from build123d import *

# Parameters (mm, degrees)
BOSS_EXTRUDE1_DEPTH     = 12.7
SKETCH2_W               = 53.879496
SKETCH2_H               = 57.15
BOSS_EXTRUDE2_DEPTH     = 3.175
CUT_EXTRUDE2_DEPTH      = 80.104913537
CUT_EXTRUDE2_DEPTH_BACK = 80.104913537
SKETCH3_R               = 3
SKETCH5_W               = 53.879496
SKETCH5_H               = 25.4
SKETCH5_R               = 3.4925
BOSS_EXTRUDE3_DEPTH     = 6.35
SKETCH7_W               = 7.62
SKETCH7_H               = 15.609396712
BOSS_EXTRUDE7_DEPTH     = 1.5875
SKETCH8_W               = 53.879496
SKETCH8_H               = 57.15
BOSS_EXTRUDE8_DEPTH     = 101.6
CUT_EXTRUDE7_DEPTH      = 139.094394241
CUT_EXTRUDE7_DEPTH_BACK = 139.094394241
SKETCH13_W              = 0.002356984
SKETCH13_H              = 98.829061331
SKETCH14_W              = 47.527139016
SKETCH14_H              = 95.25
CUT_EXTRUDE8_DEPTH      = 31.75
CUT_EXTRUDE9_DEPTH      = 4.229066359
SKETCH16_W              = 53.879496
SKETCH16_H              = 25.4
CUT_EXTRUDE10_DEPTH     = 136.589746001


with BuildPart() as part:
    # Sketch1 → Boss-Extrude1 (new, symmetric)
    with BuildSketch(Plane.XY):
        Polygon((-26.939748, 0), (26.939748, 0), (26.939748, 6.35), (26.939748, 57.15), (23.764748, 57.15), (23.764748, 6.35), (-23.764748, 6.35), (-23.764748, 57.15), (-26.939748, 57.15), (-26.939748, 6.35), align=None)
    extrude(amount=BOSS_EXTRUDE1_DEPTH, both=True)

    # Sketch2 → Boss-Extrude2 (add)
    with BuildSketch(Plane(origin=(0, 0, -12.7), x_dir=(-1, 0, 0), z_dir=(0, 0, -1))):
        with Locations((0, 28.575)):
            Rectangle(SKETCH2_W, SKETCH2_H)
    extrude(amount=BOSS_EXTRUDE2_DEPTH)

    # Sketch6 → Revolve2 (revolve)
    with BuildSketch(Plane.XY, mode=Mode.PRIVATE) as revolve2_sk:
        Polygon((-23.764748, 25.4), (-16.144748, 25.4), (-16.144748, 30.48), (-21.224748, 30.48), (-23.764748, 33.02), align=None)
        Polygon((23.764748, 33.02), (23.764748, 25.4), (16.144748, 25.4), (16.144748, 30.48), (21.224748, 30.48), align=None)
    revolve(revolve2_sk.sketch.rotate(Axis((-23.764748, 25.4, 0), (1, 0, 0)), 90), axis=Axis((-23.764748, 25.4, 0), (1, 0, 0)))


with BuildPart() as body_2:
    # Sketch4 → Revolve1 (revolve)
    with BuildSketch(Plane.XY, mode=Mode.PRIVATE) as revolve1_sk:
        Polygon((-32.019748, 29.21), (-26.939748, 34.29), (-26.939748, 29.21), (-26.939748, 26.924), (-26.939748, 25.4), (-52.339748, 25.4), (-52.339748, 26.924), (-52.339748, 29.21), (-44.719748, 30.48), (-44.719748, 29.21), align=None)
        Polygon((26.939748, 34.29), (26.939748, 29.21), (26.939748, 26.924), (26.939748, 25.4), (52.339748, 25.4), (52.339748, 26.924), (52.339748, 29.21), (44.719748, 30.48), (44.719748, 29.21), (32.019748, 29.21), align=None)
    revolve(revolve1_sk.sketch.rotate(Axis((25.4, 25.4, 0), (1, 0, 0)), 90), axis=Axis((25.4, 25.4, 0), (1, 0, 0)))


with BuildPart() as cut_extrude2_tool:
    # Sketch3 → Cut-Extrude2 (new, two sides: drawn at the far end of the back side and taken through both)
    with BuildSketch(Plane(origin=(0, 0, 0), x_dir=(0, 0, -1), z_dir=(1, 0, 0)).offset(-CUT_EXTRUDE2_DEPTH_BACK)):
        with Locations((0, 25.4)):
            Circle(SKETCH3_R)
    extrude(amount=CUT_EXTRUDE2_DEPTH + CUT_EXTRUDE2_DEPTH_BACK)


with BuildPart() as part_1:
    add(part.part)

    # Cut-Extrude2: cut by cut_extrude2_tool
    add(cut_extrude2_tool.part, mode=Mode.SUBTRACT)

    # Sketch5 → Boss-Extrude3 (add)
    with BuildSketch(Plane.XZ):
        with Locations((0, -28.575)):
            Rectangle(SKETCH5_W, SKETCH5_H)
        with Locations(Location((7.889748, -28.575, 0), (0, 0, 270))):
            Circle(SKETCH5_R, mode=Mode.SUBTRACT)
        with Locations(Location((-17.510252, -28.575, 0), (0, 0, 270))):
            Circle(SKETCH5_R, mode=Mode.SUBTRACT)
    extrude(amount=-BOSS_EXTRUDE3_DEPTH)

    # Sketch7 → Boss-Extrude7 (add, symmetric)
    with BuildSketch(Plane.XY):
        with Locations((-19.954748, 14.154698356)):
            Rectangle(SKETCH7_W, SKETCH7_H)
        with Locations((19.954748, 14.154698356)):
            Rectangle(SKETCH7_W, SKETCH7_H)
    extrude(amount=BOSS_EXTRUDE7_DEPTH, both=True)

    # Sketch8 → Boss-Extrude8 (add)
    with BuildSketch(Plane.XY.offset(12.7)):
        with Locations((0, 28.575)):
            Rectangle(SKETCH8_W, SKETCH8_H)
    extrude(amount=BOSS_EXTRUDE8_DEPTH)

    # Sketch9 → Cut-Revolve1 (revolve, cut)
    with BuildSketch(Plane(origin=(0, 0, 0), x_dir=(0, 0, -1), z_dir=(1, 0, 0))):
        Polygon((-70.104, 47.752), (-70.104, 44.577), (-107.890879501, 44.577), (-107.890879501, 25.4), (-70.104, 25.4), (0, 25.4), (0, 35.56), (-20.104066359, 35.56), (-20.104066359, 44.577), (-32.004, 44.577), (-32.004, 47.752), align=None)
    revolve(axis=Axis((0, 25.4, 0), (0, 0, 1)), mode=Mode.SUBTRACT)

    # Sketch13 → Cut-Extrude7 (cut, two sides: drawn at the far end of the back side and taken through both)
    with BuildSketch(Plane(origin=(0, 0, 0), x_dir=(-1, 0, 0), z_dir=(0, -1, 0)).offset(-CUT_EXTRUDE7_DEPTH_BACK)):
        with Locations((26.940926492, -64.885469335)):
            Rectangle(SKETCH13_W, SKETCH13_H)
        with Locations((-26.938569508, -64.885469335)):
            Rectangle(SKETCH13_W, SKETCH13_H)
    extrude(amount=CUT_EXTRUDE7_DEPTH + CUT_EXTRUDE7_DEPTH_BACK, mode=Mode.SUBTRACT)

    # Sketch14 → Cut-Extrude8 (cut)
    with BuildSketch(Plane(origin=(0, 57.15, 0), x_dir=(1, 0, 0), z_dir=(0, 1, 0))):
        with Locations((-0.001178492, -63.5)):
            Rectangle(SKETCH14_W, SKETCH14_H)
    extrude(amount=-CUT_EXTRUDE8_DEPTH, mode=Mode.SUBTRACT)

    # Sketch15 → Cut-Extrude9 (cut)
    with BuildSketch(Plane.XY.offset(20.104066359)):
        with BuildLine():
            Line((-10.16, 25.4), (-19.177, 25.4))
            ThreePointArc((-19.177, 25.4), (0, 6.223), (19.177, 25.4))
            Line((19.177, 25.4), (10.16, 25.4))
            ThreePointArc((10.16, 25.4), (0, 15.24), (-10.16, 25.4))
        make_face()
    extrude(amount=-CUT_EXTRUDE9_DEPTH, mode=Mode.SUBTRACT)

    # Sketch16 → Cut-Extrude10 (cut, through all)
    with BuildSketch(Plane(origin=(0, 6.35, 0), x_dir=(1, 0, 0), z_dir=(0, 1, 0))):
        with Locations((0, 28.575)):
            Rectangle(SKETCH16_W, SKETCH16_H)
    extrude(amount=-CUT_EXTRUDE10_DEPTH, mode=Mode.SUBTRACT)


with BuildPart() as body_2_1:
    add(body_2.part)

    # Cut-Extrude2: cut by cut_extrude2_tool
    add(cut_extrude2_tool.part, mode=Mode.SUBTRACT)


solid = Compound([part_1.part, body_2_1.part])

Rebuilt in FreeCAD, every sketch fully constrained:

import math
import FreeCAD as App
import Part
import Sketcher
from FreeCAD import Vector
Q = App.Units.Quantity


def add_polygon(sketch, points):
    """Adds a closed chain of lines whose ends are joined by coincident constraints."""
    first, n = sketch.GeometryCount, len(points)
    for a, b in zip(points, points[1:] + points[:1]):
        sketch.addGeometry(Part.LineSegment(App.Vector(*a, 0), App.Vector(*b, 0)), False)
    for i in range(n):
        sketch.addConstraint(Sketcher.Constraint("Coincident", first + i, 2, first + (i + 1) % n, 1))

doc = App.newDocument("Part")
body = doc.addObject("PartDesign::Body", "Body")

# Sketch on XY plane
sketch1 = body.newObject("Sketcher::SketchObject", "Sketch")
sketch1.AttachmentSupport = (doc.getObject("XY_Plane"), [""])
sketch1.MapMode = "FlatFace"
add_polygon(sketch1, [(-26.9, 0), (26.9, 0), (26.9, 57.1), (23.8, 57.1), (23.8, 6.3), (-23.8, 6.3), (-23.8, 57.1), (-26.9, 57.1)])  # lines 0-7
sketch1.addConstraint([
    Sketcher.Constraint("Horizontal", 0),
    Sketcher.Constraint("Vertical", 1),
    Sketcher.Constraint("Horizontal", 2),
    Sketcher.Constraint("Vertical", 3),
    Sketcher.Constraint("Horizontal", 4),
    Sketcher.Constraint("Vertical", 5),
    Sketcher.Constraint("Horizontal", 6),
    Sketcher.Constraint("Vertical", 7),
    Sketcher.Constraint("Symmetric", 0, 2, 7, 2, -1, 1),
    Sketcher.Constraint("Symmetric", 2, 2, 5, 2, -2),
    Sketcher.Constraint("DistanceY", 3, 2, 3, 1, Q("2 in")),
    Sketcher.Constraint("DistanceY", 1, 1, 1, 2, Q("2.25 in")),
    Sketcher.Constraint("DistanceX", 2, 2, 2, 1, Q("0.125 in")),
    Sketcher.Constraint("DistanceX", 0, 1, 0, 2, Q("53.879496 mm")),
])
pad1 = body.newObject("PartDesign::Pad", "Pad")
pad1.Profile = sketch1
pad1.Length = Q("1 in")
pad1.Midplane = True

# Sketch on XY plane
sketch2 = body.newObject("Sketcher::SketchObject", "Sketch001")
sketch2.AttachmentSupport = (doc.getObject("XY_Plane"), [""])
sketch2.MapMode = "FlatFace"
sketch2.AttachmentOffset = App.Placement(Vector(0, 0, -0.5 * 25.4), App.Rotation())
add_polygon(sketch2, [(27, 57), (27, 0), (-27, 0), (-27, 57)])  # lines 0-3
sketch2.addConstraint([
    Sketcher.Constraint("Vertical", 0),
    Sketcher.Constraint("Horizontal", 1),
    Sketcher.Constraint("Vertical", 2),
    Sketcher.Constraint("Horizontal", 3),
    Sketcher.Constraint("Symmetric", 0, 2, 1, 2, -1, 1),
    Sketcher.Constraint("DistanceY", 0, 2, 0, 1, Q("2.25 in")),
    Sketcher.Constraint("DistanceX", 1, 2, 1, 1, Q("53.879496 mm")),
])
pad2 = body.newObject("PartDesign::Pad", "Pad001")
pad2.Profile = sketch2
pad2.Length = Q("0.125 in")
pad2.Reversed = True

# Sketch on XY plane
sketch3 = body.newObject("Sketcher::SketchObject", "Sketch002")
sketch3.AttachmentSupport = (doc.getObject("XY_Plane"), [""])
sketch3.MapMode = "FlatFace"
add_polygon(sketch3, [(-23.8, 25.4), (-16.1, 25.4), (-16.1, 30.5), (-21.2, 30.5), (-23.8, 33)])  # lines 0-4
add_polygon(sketch3, [(23.8, 25.4), (23.8, 33), (21.2, 30.5), (16.1, 30.5), (16.1, 25.4)])  # lines 5-9
sketch3.addGeometry(Part.LineSegment(Vector(-23.8, 25.4, 0), Vector(23.8, 25.4, 0)), True)  # axis
sketch3.addConstraint([
    Sketcher.Constraint("Horizontal", 0),
    Sketcher.Constraint("Vertical", 1),
    Sketcher.Constraint("Horizontal", 2),
    Sketcher.Constraint("Vertical", 4),
    Sketcher.Constraint("Vertical", 5),
    Sketcher.Constraint("Horizontal", 7),
    Sketcher.Constraint("Vertical", 8),
    Sketcher.Constraint("Horizontal", 9),
    Sketcher.Constraint("Horizontal", 10),
    Sketcher.Constraint("Coincident", 10, 1, 4, 2),
    Sketcher.Constraint("Coincident", 10, 2, 9, 2),
    Sketcher.Constraint("Symmetric", 3, 2, 5, 2, -2),
    Sketcher.Constraint("Symmetric", 2, 2, 6, 2, -2),
    Sketcher.Constraint("Perpendicular", 3, 6),
    Sketcher.Constraint("Equal", 2, 7),
    Sketcher.Constraint("Equal", 7, 1),
    Sketcher.Constraint("DistanceX", 0, 1, 0, 2, Q("0.3 in")),
    Sketcher.Constraint("DistanceX", 2, 2, 2, 1, Q("0.2 in")),
    Sketcher.Constraint("DistanceY", -1, 1, 0, 2, Q("1 in")),
    Sketcher.Constraint("DistanceX", 10, 1, 10, 2, Q("47.529496 mm")),
])
revolution = body.newObject("PartDesign::Revolution", "Revolution")
revolution.Profile = sketch3
revolution.ReferenceAxis = (sketch3, ["Axis0"])
revolution.Angle = 360
body2 = doc.addObject("PartDesign::Body", "Body001")
body2.AllowCompound = True

# Sketch on XY plane
sketch4 = body2.newObject("Sketcher::SketchObject", "Sketch003")
sketch4.AttachmentSupport = (doc.getObject("XY_Plane001"), [""])
sketch4.MapMode = "FlatFace"
add_polygon(sketch4, [(-26.9, 34.3), (-32, 29.2), (-44.7, 29.2), (-44.7, 30.5), (-52.3, 29.2), (-52.3, 25.4), (-26.9, 25.4)])  # lines 0-6
add_polygon(sketch4, [(26.9, 34.3), (26.9, 25.4), (52.3, 25.4), (52.3, 29.2), (44.7, 30.5), (44.7, 29.2), (32, 29.2)])  # lines 7-13
sketch4.addGeometry(Part.LineSegment(Vector(-52.3, 25.4, 0), Vector(52.3, 25.4, 0)), True)  # axis
sketch4.addConstraint([
    Sketcher.Constraint("Horizontal", 1),
    Sketcher.Constraint("Vertical", 2),
    Sketcher.Constraint("Vertical", 4),
    Sketcher.Constraint("Horizontal", 5),
    Sketcher.Constraint("Vertical", 6),
    Sketcher.Constraint("Vertical", 7),
    Sketcher.Constraint("Horizontal", 8),
    Sketcher.Constraint("Vertical", 9),
    Sketcher.Constraint("Vertical", 11),
    Sketcher.Constraint("Horizontal", 12),
    Sketcher.Constraint("Horizontal", 14),
    Sketcher.Constraint("Coincident", 14, 1, 4, 2),
    Sketcher.Constraint("Coincident", 14, 2, 8, 2),
    Sketcher.Constraint("Symmetric", 3, 2, 9, 2, -2),
    Sketcher.Constraint("Symmetric", 2, 2, 10, 2, -2),
    Sketcher.Constraint("Symmetric", 0, 2, 12, 2, -2),
    Sketcher.Constraint("Symmetric", 6, 2, 13, 2, -2),
    Sketcher.Constraint("Perpendicular", 0, 13),
    Sketcher.Constraint("Horizontal", 1, 2, 3, 2),
    Sketcher.Constraint("DistanceX", 5, 1, 5, 2, Q("1 in")),
    Sketcher.Constraint("DistanceX", 1, 2, 1, 1, Q("0.5 in")),
    Sketcher.Constraint("DistanceY", -1, 1, 4, 2, Q("1 in")),
    Sketcher.Constraint("DistanceY", 2, 1, 2, 2, Q("0.05 in")),
    Sketcher.Constraint("DistanceY", 4, 2, 4, 1, Q("0.15 in")),
    Sketcher.Constraint("DistanceY", 6, 1, 6, 2, Q("0.35 in")),
    Sketcher.Constraint("DistanceX", 14, 1, 14, 2, Q("104.679496 mm")),
])
revolution2 = body2.newObject("PartDesign::Revolution", "Revolution001")
revolution2.Profile = sketch4
revolution2.ReferenceAxis = (sketch4, ["Axis0"])
revolution2.Angle = 360
body3 = doc.addObject("PartDesign::Body", "Body002")

# Sketch on YZ plane
sketch5 = body3.newObject("Sketcher::SketchObject", "Sketch004")
sketch5.AttachmentSupport = (doc.getObject("YZ_Plane002"), [""])
sketch5.MapMode = "FlatFace"
sketch5.addGeometry(Part.Circle(Vector(25.4, 0, 0), Vector(0, 0, 1), 3), False)
sketch5.addConstraint([
    Sketcher.Constraint("PointOnObject", 0, 3, -1),
    Sketcher.Constraint("DistanceX", -1, 1, 0, 3, Q("1 in")),
    Sketcher.Constraint("Diameter", 0, Q("6 mm")),
])
pad3 = body3.newObject("PartDesign::Pad", "Pad002")
pad3.Profile = sketch5
pad3.Type = "TwoLengths"
pad3.Length = 80.104914
pad3.Length2 = 80.104914
doc.recompute()

body4 = doc.addObject("PartDesign::Body", "Body003")
body4.BaseFeature = body3
boolean = body.newObject("PartDesign::Boolean", "Boolean")
boolean.Type = "Cut"
boolean.addObjects([body4])
doc.recompute()

# Sketch on XZ plane
sketch6 = body.newObject("Sketcher::SketchObject", "Sketch005")
sketch6.AttachmentSupport = (doc.getObject("XZ_Plane"), [""])
sketch6.MapMode = "FlatFace"
add_polygon(sketch6, [(-26.9, -15.9), (-26.9, -41.3), (26.9, -41.3), (26.9, -15.9)])  # lines 0-3
sketch6.addGeometry(Part.Circle(Vector(-17.5, -28.6, 0), Vector(0, 0, 1), 3.5), False)  # 4
sketch6.addGeometry(Part.Circle(Vector(7.9, -28.6, 0), Vector(0, 0, 1), 3.5), False)  # 5
sketch6.addConstraint([
    Sketcher.Constraint("Vertical", 0),
    Sketcher.Constraint("Horizontal", 1),
    Sketcher.Constraint("Vertical", 2),
    Sketcher.Constraint("Horizontal", 3),
    Sketcher.Constraint("Equal", 4, 5),
    Sketcher.Constraint("Horizontal", 4, 3, 5, 3),
    Sketcher.Constraint("DistanceY", 0, 2, 0, 1, Q("1 in")),
    Sketcher.Constraint("Diameter", 4, Q("0.275 in")),
    Sketcher.Constraint("DistanceX", 4, 3, 5, 3, Q("1 in")),
    Sketcher.Constraint("DistanceY", 0, 2, 4, 3, Q("0.5 in")),
    Sketcher.Constraint("DistanceX", 5, 3, 1, 2, Q("0.75 in")),
    Sketcher.Constraint("DistanceY", 4, 3, -1, 1, Q("1.125 in")),
    Sketcher.Constraint("DistanceX", 1, 1, 1, 2, Q("53.879496 mm")),
    Sketcher.Constraint("DistanceX", 0, 2, -1, 1, Q("26.939748 mm")),
])
pad4 = body.newObject("PartDesign::Pad", "Pad003")
pad4.Profile = sketch6
pad4.Length = Q("0.25 in")
pad4.Reversed = True

# Sketch on XY plane
sketch7 = body.newObject("Sketcher::SketchObject", "Sketch006")
sketch7.AttachmentSupport = (doc.getObject("XY_Plane"), [""])
sketch7.MapMode = "FlatFace"
add_polygon(sketch7, [(-24, 22), (-24, 6), (-16, 6), (-16, 22)])  # lines 0-3
add_polygon(sketch7, [(16, 22), (16, 6), (24, 6), (24, 22)])  # lines 4-7
sketch7.addConstraint([
    Sketcher.Constraint("Vertical", 0),
    Sketcher.Constraint("Horizontal", 1),
    Sketcher.Constraint("Vertical", 2),
    Sketcher.Constraint("Horizontal", 3),
    Sketcher.Constraint("Vertical", 4),
    Sketcher.Constraint("Horizontal", 5),
    Sketcher.Constraint("Vertical", 6),
    Sketcher.Constraint("Horizontal", 7),
    Sketcher.Constraint("Symmetric", 1, 2, 4, 2, -2),
    Sketcher.Constraint("Symmetric", 3, 2, 6, 2, -2),
    Sketcher.Constraint("DistanceX", 1, 1, 1, 2, Q("0.3 in")),
    Sketcher.Constraint("DistanceY", -1, 1, 0, 2, Q("0.25 in")),
    Sketcher.Constraint("DistanceY", 0, 2, 0, 1, Q("15.609397 mm")),
    Sketcher.Constraint("DistanceX", 0, 2, -1, 1, Q("23.764748 mm")),
])
pad5 = body.newObject("PartDesign::Pad", "Pad004")
pad5.Profile = sketch7
pad5.Length = Q("0.125 in")
pad5.Midplane = True

# Sketch on XY plane
sketch8 = body.newObject("Sketcher::SketchObject", "Sketch007")
sketch8.AttachmentSupport = (doc.getObject("XY_Plane"), [""])
sketch8.MapMode = "FlatFace"
sketch8.AttachmentOffset = App.Placement(Vector(0, 0, 0.5 * 25.4), App.Rotation())
add_polygon(sketch8, [(-27, 57), (-27, 0), (27, 0), (27, 57)])  # lines 0-3
sketch8.addConstraint([
    Sketcher.Constraint("Vertical", 0),
    Sketcher.Constraint("Horizontal", 1),
    Sketcher.Constraint("Vertical", 2),
    Sketcher.Constraint("Horizontal", 3),
    Sketcher.Constraint("Symmetric", 0, 2, 1, 2, -1, 1),
    Sketcher.Constraint("DistanceY", 0, 2, 0, 1, Q("2.25 in")),
    Sketcher.Constraint("DistanceX", 1, 1, 1, 2, Q("53.879496 mm")),
])
pad6 = body.newObject("PartDesign::Pad", "Pad005")
pad6.Profile = sketch8
pad6.Length = Q("4 in")

# Sketch on YZ plane
sketch9 = body.newObject("Sketcher::SketchObject", "Sketch008")
sketch9.AttachmentSupport = (doc.getObject("YZ_Plane"), [""])
sketch9.MapMode = "FlatFace"
add_polygon(sketch9, [(47.8, 70.1), (44.6, 70.1), (44.6, 107.9), (25.4, 107.9), (25.4, 0), (35.6, 0), (35.6, 20.1), (44.6, 20.1), (44.6, 32), (47.8, 32)])  # lines 0-9
sketch9.addGeometry(Part.LineSegment(Vector(25.4, 0, 0), Vector(25.4, 107.9, 0)), True)  # axis
sketch9.addConstraint([
    Sketcher.Constraint("Horizontal", 0),
    Sketcher.Constraint("Vertical", 1),
    Sketcher.Constraint("Horizontal", 2),
    Sketcher.Constraint("Vertical", 3),
    Sketcher.Constraint("Horizontal", 4),
    Sketcher.Constraint("Vertical", 5),
    Sketcher.Constraint("Horizontal", 6),
    Sketcher.Constraint("Vertical", 7),
    Sketcher.Constraint("Horizontal", 8),
    Sketcher.Constraint("Vertical", 9),
    Sketcher.Constraint("Vertical", 10),
    Sketcher.Constraint("Coincident", 10, 1, 3, 2),
    Sketcher.Constraint("PointOnObject", 3, 2, -1),
    Sketcher.Constraint("Horizontal", 1, 2, 10, 2),
    Sketcher.Constraint("Vertical", 1, 2, 6, 2),
    Sketcher.Constraint("DistanceX", 4, 1, 4, 2, Q("0.4 in")),
    Sketcher.Constraint("DistanceY", 9, 1, 9, 2, Q("1.5 in")),
    Sketcher.Constraint("DistanceX", -1, 1, 2, 2, Q("1 in")),
    Sketcher.Constraint("DistanceX", 0, 2, 0, 1, Q("0.125 in")),
    Sketcher.Constraint("DistanceX", 2, 2, 2, 1, Q("0.755 in")),
    Sketcher.Constraint("DistanceY", -1, 1, 0, 2, Q("2.76 in")),
    Sketcher.Constraint("DistanceY", 1, 1, 1, 2, Q("37.78688 mm")),
    Sketcher.Constraint("DistanceY", 5, 1, 5, 2, Q("20.104066 mm")),
])
groove = body.newObject("PartDesign::Groove", "Groove")
groove.Profile = sketch9
groove.ReferenceAxis = (sketch9, ["Axis0"])
groove.Angle = 360

# Sketch on XZ plane
sketch10 = body.newObject("Sketcher::SketchObject", "Sketch009")
sketch10.AttachmentSupport = (doc.getObject("XZ_Plane"), [""])
sketch10.MapMode = "FlatFace"
add_polygon(sketch10, [(-26.939748, 15.470939), (-26.939748, 114.3), (-26.942105, 114.3), (-26.942105, 15.470939)])  # lines 0-3
add_polygon(sketch10, [(26.939748, 15.470939), (26.939748, 114.3), (26.937391, 114.3), (26.937391, 15.470939)])  # lines 4-7
sketch10.addConstraint([
    Sketcher.Constraint("Vertical", 0),
    Sketcher.Constraint("Horizontal", 1),
    Sketcher.Constraint("Vertical", 2),
    Sketcher.Constraint("Horizontal", 3),
    Sketcher.Constraint("Vertical", 4),
    Sketcher.Constraint("Horizontal", 5),
    Sketcher.Constraint("Vertical", 6),
    Sketcher.Constraint("Horizontal", 7),
    Sketcher.Constraint("Symmetric", 0, 2, 4, 2, -2),
    Sketcher.Constraint("Horizontal", 3, 2, 6, 2),
    Sketcher.Constraint("Equal", 3, 5),
    Sketcher.Constraint("DistanceY", -1, 1, 0, 2, Q("4.5 in")),
    Sketcher.Constraint("DistanceY", 0, 1, 0, 2, Q("98.829061 mm")),
    Sketcher.Constraint("DistanceX", 1, 2, 1, 1, Q("0.002357 mm")),
    Sketcher.Constraint("DistanceX", 0, 2, -1, 1, Q("26.939748 mm")),
])
pocket1 = body.newObject("PartDesign::Pocket", "Pocket")
pocket1.Profile = sketch10
pocket1.Type = "ThroughAll"
pocket1.Midplane = True

# Sketch on XZ plane
sketch11 = body.newObject("Sketcher::SketchObject", "Sketch010")
sketch11.AttachmentSupport = (doc.getObject("XZ_Plane"), [""])
sketch11.MapMode = "FlatFace"
sketch11.AttachmentOffset = App.Placement(Vector(0, 0, -2.25 * 25.4), App.Rotation())
add_polygon(sketch11, [(-24, 16), (-24, 111), (24, 111), (24, 16)])  # lines 0-3
sketch11.addConstraint([
    Sketcher.Constraint("Vertical", 0),
    Sketcher.Constraint("Horizontal", 1),
    Sketcher.Constraint("Vertical", 2),
    Sketcher.Constraint("Horizontal", 3),
    Sketcher.Constraint("DistanceY", 0, 1, 0, 2, Q("3.75 in")),
    Sketcher.Constraint("DistanceY", -1, 1, 0, 2, Q("4.375 in")),
    Sketcher.Constraint("DistanceX", 1, 1, 1, 2, Q("47.527139 mm")),
    Sketcher.Constraint("DistanceX", 0, 2, -1, 1, Q("23.764748 mm")),
])
pocket2 = body.newObject("PartDesign::Pocket", "Pocket001")
pocket2.Profile = sketch11
pocket2.Length = Q("1.25 in")
pocket2.Reversed = True

# Sketch on XY plane
sketch12 = body.newObject("Sketcher::SketchObject", "Sketch011")
sketch12.AttachmentSupport = (doc.getObject("XY_Plane"), [""])
sketch12.MapMode = "FlatFace"
sketch12.AttachmentOffset = App.Placement(Vector(0, 0, 20.104066), App.Rotation())
sketch12.addGeometry([
    Part.LineSegment(Vector(-10, 25, 0), Vector(-19, 25, 0)),
    Part.ArcOfCircle(Part.Circle(Vector(0, 25, 0), Vector(0, 0, 1), 19), math.radians(180), math.radians(360)),
    Part.LineSegment(Vector(19, 25, 0), Vector(10, 25, 0)),
    Part.ArcOfCircle(Part.Circle(Vector(0, 25, 0), Vector(0, 0, 1), 10), math.radians(180), math.radians(360)),
], False)
sketch12.addConstraint([
    Sketcher.Constraint("Coincident", 0, 2, 1, 1),
    Sketcher.Constraint("Coincident", 1, 2, 2, 1),
    Sketcher.Constraint("Coincident", 2, 2, 3, 2),
    Sketcher.Constraint("Coincident", 3, 1, 0, 1),
    Sketcher.Constraint("Horizontal", 0),
    Sketcher.Constraint("Horizontal", 2),
    Sketcher.Constraint("Coincident", 3, 3, 1, 3),
    Sketcher.Constraint("Symmetric", 0, 2, 1, 2, -2),
    Sketcher.Constraint("Horizontal", 3, 3, 0, 2),
    Sketcher.Constraint("Radius", 3, Q("0.4 in")),
    Sketcher.Constraint("DistanceY", -1, 1, 1, 3, Q("1 in")),
    Sketcher.Constraint("Radius", 1, Q("0.755 in")),
])
pocket3 = body.newObject("PartDesign::Pocket", "Pocket002")
pocket3.Profile = sketch12
pocket3.Length = 4.229066

# Sketch on XZ plane
sketch13 = body.newObject("Sketcher::SketchObject", "Sketch012")
sketch13.AttachmentSupport = (doc.getObject("XZ_Plane"), [""])
sketch13.MapMode = "FlatFace"
sketch13.AttachmentOffset = App.Placement(Vector(0, 0, -0.25 * 25.4), App.Rotation())
add_polygon(sketch13, [(-27, -41), (-27, -16), (27, -16), (27, -41)])  # lines 0-3
sketch13.addConstraint([
    Sketcher.Constraint("Vertical", 0),
    Sketcher.Constraint("Horizontal", 1),
    Sketcher.Constraint("Vertical", 2),
    Sketcher.Constraint("Horizontal", 3),
    Sketcher.Constraint("DistanceY", 0, 1, 0, 2, Q("1 in")),
    Sketcher.Constraint("DistanceY", 0, 2, -1, 1, Q("0.625 in")),
    Sketcher.Constraint("DistanceX", 1, 1, 1, 2, Q("53.879496 mm")),
    Sketcher.Constraint("DistanceX", 0, 2, -1, 1, Q("26.939748 mm")),
])
pocket4 = body.newObject("PartDesign::Pocket", "Pocket003")
pocket4.Profile = sketch13
pocket4.Type = "ThroughAll"
pocket4.Reversed = True
body2.AllowCompound = True
doc.recompute()

boolean2 = body2.newObject("PartDesign::Boolean", "Boolean001")
boolean2.Type = "Cut"
boolean2.addObjects([body3])

doc.recompute()
